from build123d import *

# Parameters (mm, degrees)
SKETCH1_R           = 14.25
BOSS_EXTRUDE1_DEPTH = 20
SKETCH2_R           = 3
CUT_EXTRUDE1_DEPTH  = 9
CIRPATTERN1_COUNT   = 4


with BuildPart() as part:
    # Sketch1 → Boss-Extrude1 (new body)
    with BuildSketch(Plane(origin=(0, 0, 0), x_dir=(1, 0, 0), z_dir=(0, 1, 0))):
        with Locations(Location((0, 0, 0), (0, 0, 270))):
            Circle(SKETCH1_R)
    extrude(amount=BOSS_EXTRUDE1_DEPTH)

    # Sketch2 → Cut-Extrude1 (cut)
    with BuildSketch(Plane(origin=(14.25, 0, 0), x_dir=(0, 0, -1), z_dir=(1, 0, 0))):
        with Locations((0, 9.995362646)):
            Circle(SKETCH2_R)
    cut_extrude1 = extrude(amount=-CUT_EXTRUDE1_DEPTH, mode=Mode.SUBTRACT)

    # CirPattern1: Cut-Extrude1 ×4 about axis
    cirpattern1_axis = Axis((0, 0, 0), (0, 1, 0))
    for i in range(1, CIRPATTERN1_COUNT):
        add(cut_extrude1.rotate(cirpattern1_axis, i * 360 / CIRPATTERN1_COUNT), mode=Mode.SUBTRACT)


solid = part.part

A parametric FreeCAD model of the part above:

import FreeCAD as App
import Part
import Sketcher
from FreeCAD import Vector
Q = App.Units.Quantity

doc = App.newDocument("Part")
body = doc.addObject("PartDesign::Body", "Body")

# Sketch on XZ plane
sketch1 = body.newObject("Sketcher::SketchObject", "Sketch")
sketch1.AttachmentSupport = (doc.getObject("XZ_Plane"), [""])
sketch1.MapMode = "FlatFace"
sketch1.addGeometry(Part.Circle(Vector(0, 0, 0), Vector(0, 0, 1), 14), False)
sketch1.addConstraint(Sketcher.Constraint("Coincident", 0, 3, -1, 1))
sketch1.addConstraint(Sketcher.Constraint("Diameter", 0, Q("28.5 mm")))
pad1 = body.newObject("PartDesign::Pad", "Pad")
pad1.Profile = sketch1
pad1.Length = 20
pad1.Reversed = True

# Sketch on YZ plane
sketch2 = body.newObject("Sketcher::SketchObject", "Sketch001")
sketch2.AttachmentSupport = (doc.getObject("YZ_Plane"), [""])
sketch2.MapMode = "FlatFace"
sketch2.AttachmentOffset = App.Placement(Vector(0, 0, 14.25), App.Rotation())
sketch2.addGeometry(Part.Circle(Vector(10, 0, 0), Vector(0, 0, 1), 3), False)
sketch2.addConstraint(Sketcher.Constraint("PointOnObject", 0, 3, -1))
sketch2.addConstraint(Sketcher.Constraint("Diameter", 0, Q("6 mm")))
sketch2.addConstraint(Sketcher.Constraint("DistanceX", -1, 1, 0, 3, Q("9.995363 mm")))
pocket1 = body.newObject("PartDesign::Pocket", "Pocket")
pocket1.Profile = sketch2
pocket1.Length = 9
doc.recompute()

polarpattern = body.newObject("PartDesign::PolarPattern", "PolarPattern")
polarpattern.Originals = [pocket1]
polarpattern.Axis = (doc.getObject("Y_Axis"), [""])
polarpattern.Angle = 360
polarpattern.Occurrences = 4
body.Tip = polarpattern

doc.recompute()
